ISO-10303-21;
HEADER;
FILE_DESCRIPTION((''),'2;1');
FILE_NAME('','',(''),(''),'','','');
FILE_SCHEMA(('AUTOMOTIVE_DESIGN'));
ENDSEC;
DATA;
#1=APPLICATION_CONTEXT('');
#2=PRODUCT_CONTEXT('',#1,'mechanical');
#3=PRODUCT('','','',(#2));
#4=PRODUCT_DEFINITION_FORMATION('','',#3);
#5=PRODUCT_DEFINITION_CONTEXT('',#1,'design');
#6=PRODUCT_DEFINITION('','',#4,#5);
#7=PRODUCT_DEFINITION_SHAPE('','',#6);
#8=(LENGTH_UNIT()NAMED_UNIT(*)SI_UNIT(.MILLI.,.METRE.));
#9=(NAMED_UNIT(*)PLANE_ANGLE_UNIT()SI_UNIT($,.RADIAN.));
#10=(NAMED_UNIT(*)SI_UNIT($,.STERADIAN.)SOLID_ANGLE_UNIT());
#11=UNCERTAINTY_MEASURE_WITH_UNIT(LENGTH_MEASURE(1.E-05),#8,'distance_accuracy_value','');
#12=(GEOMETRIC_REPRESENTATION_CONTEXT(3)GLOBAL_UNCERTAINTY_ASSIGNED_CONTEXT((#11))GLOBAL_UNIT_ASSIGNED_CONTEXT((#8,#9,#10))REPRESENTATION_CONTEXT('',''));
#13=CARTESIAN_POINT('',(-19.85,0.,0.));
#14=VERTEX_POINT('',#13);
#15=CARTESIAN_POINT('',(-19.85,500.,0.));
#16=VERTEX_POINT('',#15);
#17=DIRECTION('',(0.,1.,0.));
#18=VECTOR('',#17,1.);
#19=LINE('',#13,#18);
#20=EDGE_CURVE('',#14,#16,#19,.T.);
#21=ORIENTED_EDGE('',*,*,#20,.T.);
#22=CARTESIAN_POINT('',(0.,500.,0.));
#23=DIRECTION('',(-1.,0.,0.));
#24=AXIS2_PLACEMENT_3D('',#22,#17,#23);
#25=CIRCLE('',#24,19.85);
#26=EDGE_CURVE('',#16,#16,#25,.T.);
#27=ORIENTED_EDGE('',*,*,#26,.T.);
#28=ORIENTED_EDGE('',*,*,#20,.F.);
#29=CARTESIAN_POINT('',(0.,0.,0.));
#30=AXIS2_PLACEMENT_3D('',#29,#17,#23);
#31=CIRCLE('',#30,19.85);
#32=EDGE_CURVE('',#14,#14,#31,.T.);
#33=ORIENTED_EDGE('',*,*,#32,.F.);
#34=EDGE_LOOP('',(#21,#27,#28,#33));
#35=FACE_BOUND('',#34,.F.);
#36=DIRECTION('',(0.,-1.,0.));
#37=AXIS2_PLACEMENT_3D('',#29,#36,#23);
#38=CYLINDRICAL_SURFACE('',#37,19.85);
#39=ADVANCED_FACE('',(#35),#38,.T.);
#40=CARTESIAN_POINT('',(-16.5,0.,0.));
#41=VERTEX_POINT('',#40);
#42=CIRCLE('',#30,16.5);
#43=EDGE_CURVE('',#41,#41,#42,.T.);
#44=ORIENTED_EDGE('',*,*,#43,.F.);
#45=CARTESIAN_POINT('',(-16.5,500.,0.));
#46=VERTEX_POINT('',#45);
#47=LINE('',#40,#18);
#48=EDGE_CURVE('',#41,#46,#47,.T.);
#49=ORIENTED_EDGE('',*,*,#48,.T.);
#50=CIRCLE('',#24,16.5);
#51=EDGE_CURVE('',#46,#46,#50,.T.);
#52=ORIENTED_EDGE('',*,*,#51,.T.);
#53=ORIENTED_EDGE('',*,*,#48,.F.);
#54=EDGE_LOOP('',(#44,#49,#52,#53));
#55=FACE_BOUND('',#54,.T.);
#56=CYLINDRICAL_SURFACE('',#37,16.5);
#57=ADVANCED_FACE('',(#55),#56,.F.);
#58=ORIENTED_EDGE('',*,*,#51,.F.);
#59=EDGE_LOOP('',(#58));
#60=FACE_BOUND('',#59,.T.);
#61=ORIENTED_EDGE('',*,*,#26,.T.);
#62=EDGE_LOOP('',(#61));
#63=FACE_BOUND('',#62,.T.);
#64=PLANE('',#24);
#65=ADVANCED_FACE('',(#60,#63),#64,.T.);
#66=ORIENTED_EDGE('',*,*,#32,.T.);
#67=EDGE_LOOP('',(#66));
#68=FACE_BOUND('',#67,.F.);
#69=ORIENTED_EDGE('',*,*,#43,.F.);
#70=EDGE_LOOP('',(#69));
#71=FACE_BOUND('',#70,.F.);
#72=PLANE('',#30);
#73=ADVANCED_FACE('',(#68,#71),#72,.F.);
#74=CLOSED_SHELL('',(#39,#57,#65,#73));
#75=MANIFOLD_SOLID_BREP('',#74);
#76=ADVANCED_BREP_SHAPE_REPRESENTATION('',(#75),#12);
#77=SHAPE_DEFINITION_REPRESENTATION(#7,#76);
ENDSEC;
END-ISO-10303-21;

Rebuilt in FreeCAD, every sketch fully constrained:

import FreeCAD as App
import Part
import Sketcher

V = App.Vector
Q = App.Units.Quantity

doc = App.newDocument("Part")
body = doc.addObject("PartDesign::Body", "Body")

sketch1 = body.newObject("Sketcher::SketchObject", "Sketch")
sketch1.AttachmentSupport = (doc.getObject("XZ_Plane"), [""])
sketch1.MapMode = "FlatFace"
sketch1.addGeometry([
    Part.Circle(V(0, 0, 0), V(0, 0, 1), 19.85),
    Part.Circle(V(0, 0, 0), V(0, 0, 1), 16.5),
], False)
sketch1.addConstraint([
    Sketcher.Constraint("Coincident", 0, 3, -1, 1),
    Sketcher.Constraint("Coincident", 1, 3, -1, 1),
    Sketcher.Constraint("Diameter", 1, Q("33 mm")),
    Sketcher.Constraint("Diameter", 0, Q("39.7 mm")),
])
pad1 = body.newObject("PartDesign::Pad", "Pad")
pad1.Profile = sketch1
pad1.Length = 500
pad1.Reversed = True

doc.recompute()
